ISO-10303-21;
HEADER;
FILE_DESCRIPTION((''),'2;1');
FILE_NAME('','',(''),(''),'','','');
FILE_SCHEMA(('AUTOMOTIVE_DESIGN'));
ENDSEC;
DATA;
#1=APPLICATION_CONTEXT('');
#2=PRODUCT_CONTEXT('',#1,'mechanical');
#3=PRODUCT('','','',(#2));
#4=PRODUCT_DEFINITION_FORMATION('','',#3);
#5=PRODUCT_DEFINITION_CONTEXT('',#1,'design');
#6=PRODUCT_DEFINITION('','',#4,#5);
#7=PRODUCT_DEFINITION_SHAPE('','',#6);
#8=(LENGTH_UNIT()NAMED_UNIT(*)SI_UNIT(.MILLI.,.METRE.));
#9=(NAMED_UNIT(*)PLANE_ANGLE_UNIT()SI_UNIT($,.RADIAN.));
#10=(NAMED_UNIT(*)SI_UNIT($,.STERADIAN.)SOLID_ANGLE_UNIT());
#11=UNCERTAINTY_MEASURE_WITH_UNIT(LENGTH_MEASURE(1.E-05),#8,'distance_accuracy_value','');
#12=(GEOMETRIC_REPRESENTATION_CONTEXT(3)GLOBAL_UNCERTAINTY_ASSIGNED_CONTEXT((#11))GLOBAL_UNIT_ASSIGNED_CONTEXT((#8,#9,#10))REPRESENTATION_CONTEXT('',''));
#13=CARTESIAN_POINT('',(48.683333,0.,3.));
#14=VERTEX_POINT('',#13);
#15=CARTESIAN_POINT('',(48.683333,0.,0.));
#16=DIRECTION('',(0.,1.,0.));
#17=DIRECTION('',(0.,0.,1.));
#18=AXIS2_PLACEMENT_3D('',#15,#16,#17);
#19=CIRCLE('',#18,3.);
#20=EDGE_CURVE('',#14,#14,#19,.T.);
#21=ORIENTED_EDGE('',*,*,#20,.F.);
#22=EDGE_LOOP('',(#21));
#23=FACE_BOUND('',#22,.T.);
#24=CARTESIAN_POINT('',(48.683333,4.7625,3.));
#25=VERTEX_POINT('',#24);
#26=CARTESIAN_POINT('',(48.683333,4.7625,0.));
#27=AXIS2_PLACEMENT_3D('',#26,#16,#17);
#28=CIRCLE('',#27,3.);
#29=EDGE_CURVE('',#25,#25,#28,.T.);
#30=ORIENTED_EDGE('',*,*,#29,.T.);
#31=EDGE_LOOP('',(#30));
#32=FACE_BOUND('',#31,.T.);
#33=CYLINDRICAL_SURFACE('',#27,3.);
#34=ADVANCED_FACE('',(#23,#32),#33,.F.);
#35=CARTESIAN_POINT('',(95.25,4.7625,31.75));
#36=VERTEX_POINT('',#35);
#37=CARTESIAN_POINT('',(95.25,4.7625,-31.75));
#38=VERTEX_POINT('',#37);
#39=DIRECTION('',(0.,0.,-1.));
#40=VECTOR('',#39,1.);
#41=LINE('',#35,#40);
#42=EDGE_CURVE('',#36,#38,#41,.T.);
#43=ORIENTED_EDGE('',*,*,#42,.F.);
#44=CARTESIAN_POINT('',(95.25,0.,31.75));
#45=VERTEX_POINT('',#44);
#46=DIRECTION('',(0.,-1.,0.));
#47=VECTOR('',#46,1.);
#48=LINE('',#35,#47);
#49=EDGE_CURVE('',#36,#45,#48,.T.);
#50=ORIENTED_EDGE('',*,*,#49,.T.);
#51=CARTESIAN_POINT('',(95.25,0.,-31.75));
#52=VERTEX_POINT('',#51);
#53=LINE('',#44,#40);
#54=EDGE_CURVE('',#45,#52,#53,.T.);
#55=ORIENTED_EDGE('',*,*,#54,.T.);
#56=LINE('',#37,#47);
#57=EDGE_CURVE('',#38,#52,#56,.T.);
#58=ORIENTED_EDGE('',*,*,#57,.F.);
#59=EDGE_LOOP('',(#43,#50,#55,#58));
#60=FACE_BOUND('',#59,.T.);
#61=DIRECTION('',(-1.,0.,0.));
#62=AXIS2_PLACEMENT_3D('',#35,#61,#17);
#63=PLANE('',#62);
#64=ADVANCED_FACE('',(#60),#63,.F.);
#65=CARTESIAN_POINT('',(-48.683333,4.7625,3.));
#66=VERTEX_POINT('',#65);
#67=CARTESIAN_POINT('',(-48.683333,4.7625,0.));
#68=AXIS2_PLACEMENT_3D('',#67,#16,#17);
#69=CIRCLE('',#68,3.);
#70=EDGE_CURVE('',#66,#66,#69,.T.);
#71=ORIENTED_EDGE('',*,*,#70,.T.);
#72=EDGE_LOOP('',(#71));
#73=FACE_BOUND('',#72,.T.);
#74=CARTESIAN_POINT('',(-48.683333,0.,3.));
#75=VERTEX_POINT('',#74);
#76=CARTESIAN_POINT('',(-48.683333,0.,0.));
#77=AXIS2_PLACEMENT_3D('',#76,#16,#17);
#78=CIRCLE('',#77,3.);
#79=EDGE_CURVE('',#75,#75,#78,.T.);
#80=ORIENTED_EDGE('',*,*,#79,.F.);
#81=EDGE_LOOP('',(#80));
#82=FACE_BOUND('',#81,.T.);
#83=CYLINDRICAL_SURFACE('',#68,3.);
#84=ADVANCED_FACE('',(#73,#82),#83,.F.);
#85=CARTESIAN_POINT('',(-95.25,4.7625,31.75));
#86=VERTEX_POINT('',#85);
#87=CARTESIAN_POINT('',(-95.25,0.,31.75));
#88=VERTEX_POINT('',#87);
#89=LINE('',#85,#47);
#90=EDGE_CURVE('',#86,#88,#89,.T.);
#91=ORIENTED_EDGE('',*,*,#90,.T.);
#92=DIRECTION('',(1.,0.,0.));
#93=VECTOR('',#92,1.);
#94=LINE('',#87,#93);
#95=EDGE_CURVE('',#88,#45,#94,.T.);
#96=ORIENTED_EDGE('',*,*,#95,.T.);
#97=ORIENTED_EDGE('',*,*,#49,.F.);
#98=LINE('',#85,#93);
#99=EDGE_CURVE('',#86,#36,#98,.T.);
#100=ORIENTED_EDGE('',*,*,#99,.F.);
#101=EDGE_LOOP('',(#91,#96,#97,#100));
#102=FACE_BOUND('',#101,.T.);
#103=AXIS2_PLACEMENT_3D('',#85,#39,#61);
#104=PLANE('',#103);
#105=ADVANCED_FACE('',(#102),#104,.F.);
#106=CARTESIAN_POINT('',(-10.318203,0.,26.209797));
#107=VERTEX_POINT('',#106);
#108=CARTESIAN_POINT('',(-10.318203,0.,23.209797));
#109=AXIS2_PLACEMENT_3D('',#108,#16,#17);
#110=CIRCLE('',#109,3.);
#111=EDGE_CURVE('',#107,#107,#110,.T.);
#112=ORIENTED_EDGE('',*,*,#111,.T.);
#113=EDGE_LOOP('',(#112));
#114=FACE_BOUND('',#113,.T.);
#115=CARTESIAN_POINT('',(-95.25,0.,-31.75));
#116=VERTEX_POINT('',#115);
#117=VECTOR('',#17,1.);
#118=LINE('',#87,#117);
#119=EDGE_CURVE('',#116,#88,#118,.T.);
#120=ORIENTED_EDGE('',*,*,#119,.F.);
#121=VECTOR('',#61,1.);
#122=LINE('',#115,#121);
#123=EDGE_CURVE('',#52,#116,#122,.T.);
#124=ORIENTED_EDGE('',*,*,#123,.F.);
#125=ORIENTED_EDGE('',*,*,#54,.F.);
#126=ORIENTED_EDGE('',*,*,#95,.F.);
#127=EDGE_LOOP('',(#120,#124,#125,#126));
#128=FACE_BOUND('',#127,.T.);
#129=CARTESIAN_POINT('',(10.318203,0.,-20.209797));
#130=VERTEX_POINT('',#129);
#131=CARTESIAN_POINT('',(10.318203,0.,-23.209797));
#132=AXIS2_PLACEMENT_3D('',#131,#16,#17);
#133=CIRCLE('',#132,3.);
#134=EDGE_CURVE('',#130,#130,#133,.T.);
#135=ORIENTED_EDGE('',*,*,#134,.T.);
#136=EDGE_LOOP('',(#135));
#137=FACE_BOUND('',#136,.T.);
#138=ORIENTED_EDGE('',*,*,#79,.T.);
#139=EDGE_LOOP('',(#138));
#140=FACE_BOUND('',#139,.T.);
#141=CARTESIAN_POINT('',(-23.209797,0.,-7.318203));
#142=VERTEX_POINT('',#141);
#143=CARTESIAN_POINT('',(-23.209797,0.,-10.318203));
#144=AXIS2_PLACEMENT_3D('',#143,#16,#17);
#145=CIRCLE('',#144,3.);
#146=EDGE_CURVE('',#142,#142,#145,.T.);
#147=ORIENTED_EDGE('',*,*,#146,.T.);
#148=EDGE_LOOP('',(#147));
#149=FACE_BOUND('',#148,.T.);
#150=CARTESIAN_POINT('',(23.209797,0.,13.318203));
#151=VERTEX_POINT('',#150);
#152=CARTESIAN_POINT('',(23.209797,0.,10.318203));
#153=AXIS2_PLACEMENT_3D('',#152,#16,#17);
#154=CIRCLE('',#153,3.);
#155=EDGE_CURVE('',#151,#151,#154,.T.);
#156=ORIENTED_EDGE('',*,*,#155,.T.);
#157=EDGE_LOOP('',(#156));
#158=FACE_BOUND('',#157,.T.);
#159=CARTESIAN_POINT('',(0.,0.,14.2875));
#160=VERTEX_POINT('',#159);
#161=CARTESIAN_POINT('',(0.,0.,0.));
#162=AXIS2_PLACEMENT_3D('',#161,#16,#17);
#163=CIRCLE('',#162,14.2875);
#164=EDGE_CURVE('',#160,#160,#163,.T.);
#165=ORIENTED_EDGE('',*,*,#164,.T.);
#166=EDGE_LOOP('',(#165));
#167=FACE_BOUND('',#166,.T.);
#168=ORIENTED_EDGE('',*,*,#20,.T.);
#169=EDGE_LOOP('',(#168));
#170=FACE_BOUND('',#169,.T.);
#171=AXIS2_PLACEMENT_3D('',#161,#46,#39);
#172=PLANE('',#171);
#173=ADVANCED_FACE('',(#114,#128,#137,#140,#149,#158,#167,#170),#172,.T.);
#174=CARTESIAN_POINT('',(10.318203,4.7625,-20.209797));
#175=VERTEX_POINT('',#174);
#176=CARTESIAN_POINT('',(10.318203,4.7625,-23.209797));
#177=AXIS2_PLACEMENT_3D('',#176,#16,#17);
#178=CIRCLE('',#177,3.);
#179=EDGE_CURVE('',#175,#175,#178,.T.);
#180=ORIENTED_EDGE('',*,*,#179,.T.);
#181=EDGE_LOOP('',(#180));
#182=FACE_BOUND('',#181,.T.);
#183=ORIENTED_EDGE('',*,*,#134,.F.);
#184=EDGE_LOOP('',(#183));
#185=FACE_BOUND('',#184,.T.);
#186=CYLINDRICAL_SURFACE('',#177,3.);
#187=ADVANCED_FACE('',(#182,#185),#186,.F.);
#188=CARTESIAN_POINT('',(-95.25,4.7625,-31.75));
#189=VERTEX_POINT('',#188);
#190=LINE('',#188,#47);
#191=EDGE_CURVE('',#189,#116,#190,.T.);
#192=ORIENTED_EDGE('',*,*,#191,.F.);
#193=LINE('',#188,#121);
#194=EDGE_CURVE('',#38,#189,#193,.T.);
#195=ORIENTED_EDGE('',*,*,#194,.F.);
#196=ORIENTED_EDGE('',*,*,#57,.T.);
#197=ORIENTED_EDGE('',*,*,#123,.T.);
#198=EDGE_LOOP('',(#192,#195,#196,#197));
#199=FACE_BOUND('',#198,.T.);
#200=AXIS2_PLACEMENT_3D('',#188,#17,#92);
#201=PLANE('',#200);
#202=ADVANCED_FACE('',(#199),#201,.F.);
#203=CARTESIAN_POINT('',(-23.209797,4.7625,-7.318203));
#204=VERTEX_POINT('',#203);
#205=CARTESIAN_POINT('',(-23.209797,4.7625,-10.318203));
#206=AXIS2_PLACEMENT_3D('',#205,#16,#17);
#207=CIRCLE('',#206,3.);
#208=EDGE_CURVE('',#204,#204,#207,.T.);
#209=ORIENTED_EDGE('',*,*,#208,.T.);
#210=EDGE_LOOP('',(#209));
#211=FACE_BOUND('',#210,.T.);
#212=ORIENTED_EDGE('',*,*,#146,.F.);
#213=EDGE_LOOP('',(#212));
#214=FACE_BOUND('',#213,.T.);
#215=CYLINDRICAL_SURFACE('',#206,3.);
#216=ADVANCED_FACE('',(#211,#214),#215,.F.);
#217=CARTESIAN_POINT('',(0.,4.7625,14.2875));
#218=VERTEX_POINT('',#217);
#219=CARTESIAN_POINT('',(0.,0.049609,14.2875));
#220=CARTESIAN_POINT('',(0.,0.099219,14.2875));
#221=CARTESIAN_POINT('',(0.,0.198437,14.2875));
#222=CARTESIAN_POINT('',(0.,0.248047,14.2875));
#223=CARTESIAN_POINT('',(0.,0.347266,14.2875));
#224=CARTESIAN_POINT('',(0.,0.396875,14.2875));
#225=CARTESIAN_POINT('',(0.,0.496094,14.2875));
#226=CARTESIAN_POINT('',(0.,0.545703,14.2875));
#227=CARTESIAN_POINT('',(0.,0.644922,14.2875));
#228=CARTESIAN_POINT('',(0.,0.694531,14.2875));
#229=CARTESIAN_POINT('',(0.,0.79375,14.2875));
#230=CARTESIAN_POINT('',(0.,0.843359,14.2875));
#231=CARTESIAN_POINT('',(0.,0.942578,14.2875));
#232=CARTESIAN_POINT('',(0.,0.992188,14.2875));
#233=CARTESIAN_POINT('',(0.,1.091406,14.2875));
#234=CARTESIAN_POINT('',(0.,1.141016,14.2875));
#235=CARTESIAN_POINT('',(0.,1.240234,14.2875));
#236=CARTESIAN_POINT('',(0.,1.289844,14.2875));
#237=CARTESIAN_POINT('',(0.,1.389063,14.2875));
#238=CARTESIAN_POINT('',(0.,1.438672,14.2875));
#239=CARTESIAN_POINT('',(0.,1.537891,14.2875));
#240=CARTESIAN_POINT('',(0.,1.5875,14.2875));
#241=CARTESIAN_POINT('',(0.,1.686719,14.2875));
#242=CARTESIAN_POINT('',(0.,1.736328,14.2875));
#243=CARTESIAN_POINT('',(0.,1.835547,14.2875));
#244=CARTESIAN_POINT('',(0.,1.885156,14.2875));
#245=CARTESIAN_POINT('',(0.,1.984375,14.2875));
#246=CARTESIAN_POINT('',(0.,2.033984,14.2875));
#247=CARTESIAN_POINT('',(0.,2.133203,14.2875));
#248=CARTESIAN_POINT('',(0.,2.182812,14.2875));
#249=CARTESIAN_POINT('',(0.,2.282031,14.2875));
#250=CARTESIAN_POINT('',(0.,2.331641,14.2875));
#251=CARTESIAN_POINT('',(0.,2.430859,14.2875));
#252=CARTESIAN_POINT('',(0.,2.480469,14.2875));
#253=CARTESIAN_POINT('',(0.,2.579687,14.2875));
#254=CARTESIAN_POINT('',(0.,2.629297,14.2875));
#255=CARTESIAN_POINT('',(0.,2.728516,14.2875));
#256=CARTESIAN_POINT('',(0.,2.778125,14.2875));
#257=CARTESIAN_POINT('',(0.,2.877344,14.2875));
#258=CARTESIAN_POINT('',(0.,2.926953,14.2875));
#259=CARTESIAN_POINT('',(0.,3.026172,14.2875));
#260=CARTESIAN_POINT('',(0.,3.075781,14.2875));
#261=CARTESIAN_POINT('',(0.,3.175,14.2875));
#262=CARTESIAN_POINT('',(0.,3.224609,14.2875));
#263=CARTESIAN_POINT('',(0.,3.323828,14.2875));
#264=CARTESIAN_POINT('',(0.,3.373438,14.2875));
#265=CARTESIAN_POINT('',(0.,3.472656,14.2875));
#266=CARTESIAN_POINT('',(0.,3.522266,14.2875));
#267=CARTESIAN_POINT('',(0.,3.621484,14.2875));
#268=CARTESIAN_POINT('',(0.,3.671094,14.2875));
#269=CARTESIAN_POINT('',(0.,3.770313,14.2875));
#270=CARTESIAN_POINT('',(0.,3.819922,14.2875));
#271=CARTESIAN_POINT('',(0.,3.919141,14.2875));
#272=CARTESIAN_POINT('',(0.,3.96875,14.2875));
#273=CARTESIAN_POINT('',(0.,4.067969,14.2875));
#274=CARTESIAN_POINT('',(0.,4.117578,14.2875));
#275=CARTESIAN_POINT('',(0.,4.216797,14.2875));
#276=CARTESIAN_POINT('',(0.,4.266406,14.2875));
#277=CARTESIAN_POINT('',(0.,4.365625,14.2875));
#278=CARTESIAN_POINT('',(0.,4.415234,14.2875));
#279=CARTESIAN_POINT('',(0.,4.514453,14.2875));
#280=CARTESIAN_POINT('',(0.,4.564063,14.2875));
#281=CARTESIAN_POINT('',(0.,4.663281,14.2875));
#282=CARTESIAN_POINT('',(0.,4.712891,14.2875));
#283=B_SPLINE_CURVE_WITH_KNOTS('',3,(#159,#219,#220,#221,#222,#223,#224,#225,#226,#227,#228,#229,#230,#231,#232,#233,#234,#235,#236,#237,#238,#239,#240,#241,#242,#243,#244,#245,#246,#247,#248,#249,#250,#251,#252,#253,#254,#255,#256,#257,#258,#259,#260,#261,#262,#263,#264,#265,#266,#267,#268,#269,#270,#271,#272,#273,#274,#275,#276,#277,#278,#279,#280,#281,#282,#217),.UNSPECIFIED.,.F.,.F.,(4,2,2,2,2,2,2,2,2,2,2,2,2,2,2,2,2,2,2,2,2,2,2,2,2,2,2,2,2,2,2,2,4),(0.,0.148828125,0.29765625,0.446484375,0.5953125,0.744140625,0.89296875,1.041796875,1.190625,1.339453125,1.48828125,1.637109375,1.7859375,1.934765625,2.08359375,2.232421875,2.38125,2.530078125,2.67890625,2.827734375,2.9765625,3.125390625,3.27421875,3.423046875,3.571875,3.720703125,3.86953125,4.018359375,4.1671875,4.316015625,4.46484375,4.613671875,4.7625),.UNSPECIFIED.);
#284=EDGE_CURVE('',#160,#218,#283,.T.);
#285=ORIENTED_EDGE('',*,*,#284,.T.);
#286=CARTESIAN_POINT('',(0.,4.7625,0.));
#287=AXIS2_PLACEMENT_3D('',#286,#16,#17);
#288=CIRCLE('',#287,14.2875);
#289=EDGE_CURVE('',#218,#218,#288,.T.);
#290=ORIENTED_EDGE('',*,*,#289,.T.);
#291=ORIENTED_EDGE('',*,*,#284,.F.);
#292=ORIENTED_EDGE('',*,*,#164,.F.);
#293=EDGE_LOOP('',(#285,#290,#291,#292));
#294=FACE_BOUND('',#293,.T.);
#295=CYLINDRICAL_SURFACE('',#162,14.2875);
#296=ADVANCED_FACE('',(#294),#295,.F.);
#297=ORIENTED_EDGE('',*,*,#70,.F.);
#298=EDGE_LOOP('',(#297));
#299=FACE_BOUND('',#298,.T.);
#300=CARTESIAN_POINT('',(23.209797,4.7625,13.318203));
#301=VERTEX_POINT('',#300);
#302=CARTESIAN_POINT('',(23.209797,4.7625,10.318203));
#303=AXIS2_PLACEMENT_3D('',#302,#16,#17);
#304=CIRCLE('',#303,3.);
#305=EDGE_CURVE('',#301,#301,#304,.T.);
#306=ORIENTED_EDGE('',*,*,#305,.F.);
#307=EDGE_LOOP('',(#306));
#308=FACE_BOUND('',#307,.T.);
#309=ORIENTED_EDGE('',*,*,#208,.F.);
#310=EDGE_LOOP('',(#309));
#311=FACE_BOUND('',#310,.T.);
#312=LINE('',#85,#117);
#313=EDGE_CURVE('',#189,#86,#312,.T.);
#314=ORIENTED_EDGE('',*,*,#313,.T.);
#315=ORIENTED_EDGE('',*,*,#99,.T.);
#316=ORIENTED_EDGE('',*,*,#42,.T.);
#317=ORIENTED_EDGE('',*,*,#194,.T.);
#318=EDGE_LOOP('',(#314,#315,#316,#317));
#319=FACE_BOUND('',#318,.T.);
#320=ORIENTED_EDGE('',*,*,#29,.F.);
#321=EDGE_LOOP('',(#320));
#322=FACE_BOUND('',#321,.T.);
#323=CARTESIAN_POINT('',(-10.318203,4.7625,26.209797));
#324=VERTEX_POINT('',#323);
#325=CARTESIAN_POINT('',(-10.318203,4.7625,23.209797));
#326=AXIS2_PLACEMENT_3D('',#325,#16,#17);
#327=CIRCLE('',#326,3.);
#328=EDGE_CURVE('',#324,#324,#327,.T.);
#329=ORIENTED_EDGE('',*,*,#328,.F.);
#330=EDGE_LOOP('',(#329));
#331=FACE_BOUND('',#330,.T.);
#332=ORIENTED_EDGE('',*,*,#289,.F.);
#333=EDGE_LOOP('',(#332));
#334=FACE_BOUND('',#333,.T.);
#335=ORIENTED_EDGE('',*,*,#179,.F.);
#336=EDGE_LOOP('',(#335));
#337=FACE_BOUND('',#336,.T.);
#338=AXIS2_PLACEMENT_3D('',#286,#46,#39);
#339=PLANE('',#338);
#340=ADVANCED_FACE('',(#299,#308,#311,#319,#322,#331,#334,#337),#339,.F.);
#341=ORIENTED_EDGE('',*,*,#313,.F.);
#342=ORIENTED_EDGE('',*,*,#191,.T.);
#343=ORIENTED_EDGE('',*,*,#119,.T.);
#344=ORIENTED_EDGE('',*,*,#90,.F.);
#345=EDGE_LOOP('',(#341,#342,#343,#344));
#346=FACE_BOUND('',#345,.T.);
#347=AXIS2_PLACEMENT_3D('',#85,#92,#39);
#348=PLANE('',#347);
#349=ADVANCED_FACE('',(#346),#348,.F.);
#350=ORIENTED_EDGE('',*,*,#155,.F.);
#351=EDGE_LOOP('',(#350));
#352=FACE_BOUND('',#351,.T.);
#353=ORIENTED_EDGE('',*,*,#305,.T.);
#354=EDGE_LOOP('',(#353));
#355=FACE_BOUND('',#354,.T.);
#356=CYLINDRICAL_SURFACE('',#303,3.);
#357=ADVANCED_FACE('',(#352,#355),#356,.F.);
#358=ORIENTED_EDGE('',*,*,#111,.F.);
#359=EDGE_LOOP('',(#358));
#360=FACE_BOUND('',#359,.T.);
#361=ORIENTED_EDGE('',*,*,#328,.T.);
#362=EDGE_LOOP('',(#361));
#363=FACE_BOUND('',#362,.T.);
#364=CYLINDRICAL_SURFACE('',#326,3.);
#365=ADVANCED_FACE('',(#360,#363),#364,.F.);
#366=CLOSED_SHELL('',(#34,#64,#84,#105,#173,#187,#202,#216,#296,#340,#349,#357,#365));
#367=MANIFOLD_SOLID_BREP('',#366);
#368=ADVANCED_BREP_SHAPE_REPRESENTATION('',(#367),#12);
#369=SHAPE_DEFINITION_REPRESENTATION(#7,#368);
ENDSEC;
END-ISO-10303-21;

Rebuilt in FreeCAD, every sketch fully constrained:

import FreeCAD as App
import Part
import Sketcher
from FreeCAD import Vector
Q = App.Units.Quantity


def add_polygon(sketch, points):
    """Adds a closed chain of lines whose ends are joined by coincident constraints."""
    first, n = sketch.GeometryCount, len(points)
    for a, b in zip(points, points[1:] + points[:1]):
        sketch.addGeometry(Part.LineSegment(App.Vector(*a, 0), App.Vector(*b, 0)), False)
    for i in range(n):
        sketch.addConstraint(Sketcher.Constraint("Coincident", first + i, 2, first + (i + 1) % n, 1))

doc = App.newDocument("Part")
body = doc.addObject("PartDesign::Body", "Body")

# Sketch on XZ plane
sketch1 = doc.addObject("Sketcher::SketchObject", "Sketch")
body.addObject(sketch1)
sketch1.AttachmentSupport = (doc.XZ_Plane, [""])
sketch1.MapMode = "FlatFace"
add_polygon(sketch1, [(-95.25, -31.75), (-95.25, 31.75), (95.25, 31.75), (95.25, -31.75)])  # lines 0-3
sketch1.addConstraint([
    Sketcher.Constraint("Vertical", 0),
    Sketcher.Constraint("Horizontal", 1),
    Sketcher.Constraint("Vertical", 2),
    Sketcher.Constraint("Horizontal", 3),
    Sketcher.Constraint("Symmetric", 0, 2, 2, 2, -1, 1),
    Sketcher.Constraint("DistanceX", 1, 1, 1, 2, Q("7.5 in")),
    Sketcher.Constraint("DistanceY", 0, 1, 0, 2, Q("2.5 in")),
])
pad1 = doc.addObject("PartDesign::Pad", "Pad")
body.addObject(pad1)
pad1.Profile = sketch1
pad1.Length = Q("0.1875 in")
pad1.Reversed = True

# Sketch on XZ plane
sketch2 = doc.addObject("Sketcher::SketchObject", "Sketch001")
body.addObject(sketch2)
sketch2.AttachmentSupport = (doc.XZ_Plane, [""])
sketch2.MapMode = "FlatFace"
sketch2.AttachmentOffset = App.Placement(Vector(0, 0, -0.1875 * 25.4), App.Rotation())
sketch2.addGeometry(Part.Circle(Vector(0, 0, 0), Vector(0, 0, 1), 14.2875), False)
sketch2.addConstraint([
    Sketcher.Constraint("Coincident", 0, 3, -1, 1),
    Sketcher.Constraint("Diameter", 0, Q("1.125 in")),
])
pocket1 = doc.addObject("PartDesign::Pocket", "Pocket")
body.addObject(pocket1)
pocket1.Profile = sketch2
pocket1.Type = "ThroughAll"
pocket1.Reversed = True

# Sketch on XZ plane
sketch3 = doc.addObject("Sketcher::SketchObject", "Sketch002")
body.addObject(sketch3)
sketch3.AttachmentSupport = (doc.XZ_Plane, [""])
sketch3.MapMode = "FlatFace"
sketch3.AttachmentOffset = App.Placement(Vector(0, 0, -0.1875 * 25.4), App.Rotation())
sketch3.addGeometry([
    Part.Circle(Vector(-23.209797, -10.318203, 0), Vector(0, 0, 1), 3),  # 0
    Part.Circle(Vector(-10.318203, 23.209797, 0), Vector(0, 0, 1), 3),  # 1
    Part.Circle(Vector(10.318203, -23.209797, 0), Vector(0, 0, 1), 3),  # 2
    Part.Circle(Vector(23.209797, 10.318203, 0), Vector(0, 0, 1), 3),  # 3
    Part.Circle(Vector(-48.683333, 0, 0), Vector(0, 0, 1), 3),  # 4
    Part.Circle(Vector(48.683333, 0, 0), Vector(0, 0, 1), 3),  # 5
], False)
sketch3.addConstraint([
    Sketcher.Constraint("Equal", 0, 1),
    Sketcher.Constraint("Equal", 1, 2),
    Sketcher.Constraint("Equal", 2, 3),
    Sketcher.Constraint("Equal", 3, 4),
    Sketcher.Constraint("Equal", 4, 5),
    Sketcher.Constraint("Symmetric", 1, 3, 2, 3, -1, 1),
    Sketcher.Constraint("Symmetric", 0, 3, 3, 3, -1, 1),
    Sketcher.Constraint("Symmetric", 4, 3, 5, 3, -1, 1),
    Sketcher.Constraint("PointOnObject", 4, 3, -1),
    Sketcher.Constraint("Diameter", 0, Q("6 mm")),
    Sketcher.Constraint("DistanceY", 0, 3, 1, 3, Q("1.32 in")),
    Sketcher.Constraint("DistanceX", 0, 3, 2, 3, Q("1.32 in")),
    Sketcher.Constraint("DistanceX", 4, 3, 1, 3, Q("38.365131 mm")),
    Sketcher.Constraint("DistanceX", 0, 3, -1, 1, Q("23.209797 mm")),
    Sketcher.Constraint("DistanceY", 0, 3, -1, 1, Q("10.318203 mm")),
])
doc.recompute()
hole = doc.addObject("PartDesign::Hole", "Hole")
body.addObject(hole)
hole.Profile = sketch3
hole.ThreadType = "None"
hole.Diameter = 6
hole.DepthType = "ThroughAll"
hole.Reversed = True

doc.recompute()
